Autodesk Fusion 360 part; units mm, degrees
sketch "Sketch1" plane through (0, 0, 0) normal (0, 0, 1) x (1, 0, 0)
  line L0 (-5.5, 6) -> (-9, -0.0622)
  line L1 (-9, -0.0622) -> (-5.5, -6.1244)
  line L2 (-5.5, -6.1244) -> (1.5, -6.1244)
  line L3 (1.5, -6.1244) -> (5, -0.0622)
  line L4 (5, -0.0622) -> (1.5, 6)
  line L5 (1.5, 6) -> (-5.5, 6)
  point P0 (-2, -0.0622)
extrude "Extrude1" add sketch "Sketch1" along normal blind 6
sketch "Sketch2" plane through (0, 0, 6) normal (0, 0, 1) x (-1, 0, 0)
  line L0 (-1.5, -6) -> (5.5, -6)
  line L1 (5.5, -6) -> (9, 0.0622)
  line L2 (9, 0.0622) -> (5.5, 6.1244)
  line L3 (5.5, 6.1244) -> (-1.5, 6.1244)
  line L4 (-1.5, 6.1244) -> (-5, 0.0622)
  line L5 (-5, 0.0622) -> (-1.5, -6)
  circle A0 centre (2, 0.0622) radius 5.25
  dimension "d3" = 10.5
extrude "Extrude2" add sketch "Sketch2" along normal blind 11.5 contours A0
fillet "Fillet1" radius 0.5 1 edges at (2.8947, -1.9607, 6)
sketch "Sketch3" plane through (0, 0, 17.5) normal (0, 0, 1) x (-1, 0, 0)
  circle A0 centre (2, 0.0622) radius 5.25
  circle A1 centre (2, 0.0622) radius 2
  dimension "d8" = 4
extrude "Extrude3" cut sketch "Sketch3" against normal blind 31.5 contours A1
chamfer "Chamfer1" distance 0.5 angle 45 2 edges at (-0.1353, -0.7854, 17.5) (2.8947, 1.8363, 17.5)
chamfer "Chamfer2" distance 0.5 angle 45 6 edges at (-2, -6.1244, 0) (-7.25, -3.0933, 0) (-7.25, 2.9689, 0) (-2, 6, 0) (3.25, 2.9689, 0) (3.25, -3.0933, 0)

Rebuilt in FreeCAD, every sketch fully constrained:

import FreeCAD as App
import Part
import Sketcher
from FreeCAD import Vector
Q = App.Units.Quantity


def edges_at(feature, points):
    """Names of the edges that pass closest to the given points."""
    edges = feature.Shape.Edges
    near = lambda p: min(range(len(edges)), key=lambda i: edges[i].distToShape(Part.Vertex(*p))[0])
    return sorted({f"Edge{near(p) + 1}" for p in points})

doc = App.newDocument("Part")
body = doc.addObject("PartDesign::Body", "Body")

sketch1 = doc.addObject("Sketcher::SketchObject", "Sketch")
body.addObject(sketch1)
sketch1.AttachmentSupport = (doc.XY_Plane, [""])
sketch1.MapMode = "FlatFace"
sketch1.addGeometry(Part.LineSegment(Vector(2, 6, 0), Vector(-6, 6, 0)), False)
sketch1.addGeometry(Part.LineSegment(Vector(-6, 6, 0), Vector(-9, 0, 0)), False)
sketch1.addGeometry(Part.LineSegment(Vector(-9, 0, 0), Vector(-6, -6, 0)), False)
sketch1.addGeometry(Part.LineSegment(Vector(-6, -6, 0), Vector(2, -6, 0)), False)
sketch1.addGeometry(Part.LineSegment(Vector(2, -6, 0), Vector(5, 0, 0)), False)
sketch1.addGeometry(Part.LineSegment(Vector(5, 0, 0), Vector(2, 6, 0)), False)
sketch1.addConstraint(Sketcher.Constraint("Coincident", 0, 2, 1, 1))
sketch1.addConstraint(Sketcher.Constraint("Coincident", 1, 2, 2, 1))
sketch1.addConstraint(Sketcher.Constraint("Coincident", 2, 2, 3, 1))
sketch1.addConstraint(Sketcher.Constraint("Coincident", 3, 2, 4, 1))
sketch1.addConstraint(Sketcher.Constraint("Coincident", 4, 2, 5, 1))
sketch1.addConstraint(Sketcher.Constraint("Coincident", 5, 2, 0, 1))
sketch1.addConstraint(Sketcher.Constraint("Horizontal", 0))
sketch1.addConstraint(Sketcher.Constraint("Horizontal", 3))
sketch1.addConstraint(Sketcher.Constraint("Parallel", 1, 4))
sketch1.addConstraint(Sketcher.Constraint("Parallel", 2, 5))
sketch1.addConstraint(Sketcher.Constraint("Horizontal", 1, 2, 4, 2))
sketch1.addConstraint(Sketcher.Constraint("Vertical", 0, 2, 2, 2))
sketch1.addConstraint(Sketcher.Constraint("Vertical", 3, 2, 5, 2))
sketch1.addConstraint(Sketcher.Constraint("DistanceX", 0, 2, 0, 1, Q("7 mm")))
sketch1.addConstraint(Sketcher.Constraint("Angle", 1, Q("-120 deg")))
sketch1.addConstraint(Sketcher.Constraint("Distance", 1, Q("7 mm")))
sketch1.addConstraint(Sketcher.Constraint("DistanceY", -1, 1, 0, 2, Q("6 mm")))
sketch1.addConstraint(Sketcher.Constraint("DistanceX", 1, 2, -1, 1, Q("9 mm")))
pad1 = doc.addObject("PartDesign::Pad", "Pad")
body.addObject(pad1)
pad1.Profile = sketch1
pad1.Length = 6

sketch2 = doc.addObject("Sketcher::SketchObject", "Sketch001")
body.addObject(sketch2)
sketch2.AttachmentSupport = (doc.XY_Plane, [""])
sketch2.MapMode = "FlatFace"
sketch2.AttachmentOffset = App.Placement(Vector(0, 0, 6), App.Rotation())
sketch2.addGeometry(Part.Circle(Vector(-2, 0, 0), Vector(0, 0, 1), 5), False)
sketch2.addConstraint(Sketcher.Constraint("Diameter", 0, Q("10.5 mm")))
sketch2.addConstraint(Sketcher.Constraint("DistanceX", 0, 3, -1, 1, Q("2 mm")))
sketch2.addConstraint(Sketcher.Constraint("DistanceY", 0, 3, -1, 1, Q("0.0622 mm")))
pad2 = doc.addObject("PartDesign::Pad", "Pad001")
body.addObject(pad2)
pad2.Profile = sketch2
pad2.Length = 11.5
doc.recompute()

fillet = doc.addObject("PartDesign::Fillet", "Fillet")
body.addObject(fillet)
fillet.Base = (pad2, edges_at(pad2, [(2.895, -1.961, 6)]))
fillet.Radius = 0.5

sketch3 = doc.addObject("Sketcher::SketchObject", "Sketch002")
body.addObject(sketch3)
sketch3.AttachmentSupport = (doc.XY_Plane, [""])
sketch3.MapMode = "FlatFace"
sketch3.AttachmentOffset = App.Placement(Vector(0, 0, 17.5), App.Rotation())
sketch3.addGeometry(Part.Circle(Vector(-2, -0.1, 0), Vector(0, 0, 1), 2), False)
sketch3.addConstraint(Sketcher.Constraint("Diameter", 0, Q("4 mm")))
sketch3.addConstraint(Sketcher.Constraint("DistanceX", 0, 3, -1, 1, Q("2 mm")))
sketch3.addConstraint(Sketcher.Constraint("DistanceY", 0, 3, -1, 1, Q("0.0622 mm")))
pocket1 = doc.addObject("PartDesign::Pocket", "Pocket")
body.addObject(pocket1)
pocket1.Profile = sketch3
pocket1.Length = 31.5
doc.recompute()

chamfer = doc.addObject("PartDesign::Chamfer", "Chamfer")
body.addObject(chamfer)
chamfer.Base = (pocket1, edges_at(pocket1, [(-0.135, -0.785, 17.5), (2.895, 1.836, 17.5)]))
chamfer.Size = 0.5
doc.recompute()

chamfer2 = doc.addObject("PartDesign::Chamfer", "Chamfer001")
body.addObject(chamfer2)
chamfer2.Base = (chamfer, edges_at(chamfer, [
    (-2, -6.124, 0),
    (-7.25, -3.093, 0),
    (-7.25, 2.969, 0),
    (-2, 6, 0),
    (3.25, 2.969, 0),
    (3.25, -3.093, 0),
]))
chamfer2.Size = 0.5

doc.recompute()
